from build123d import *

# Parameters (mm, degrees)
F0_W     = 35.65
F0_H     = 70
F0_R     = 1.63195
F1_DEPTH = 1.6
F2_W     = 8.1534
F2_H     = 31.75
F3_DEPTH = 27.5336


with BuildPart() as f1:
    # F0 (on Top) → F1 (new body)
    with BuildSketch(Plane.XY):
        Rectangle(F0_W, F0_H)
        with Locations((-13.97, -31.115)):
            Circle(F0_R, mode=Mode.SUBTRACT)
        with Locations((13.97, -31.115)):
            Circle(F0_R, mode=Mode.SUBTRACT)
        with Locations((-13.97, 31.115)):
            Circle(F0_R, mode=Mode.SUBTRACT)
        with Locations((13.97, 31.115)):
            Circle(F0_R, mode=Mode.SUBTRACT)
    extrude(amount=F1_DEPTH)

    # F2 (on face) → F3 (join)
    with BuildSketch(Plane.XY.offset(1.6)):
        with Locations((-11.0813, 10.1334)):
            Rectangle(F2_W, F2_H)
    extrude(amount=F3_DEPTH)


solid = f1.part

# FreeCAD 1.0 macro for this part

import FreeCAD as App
import Part
import Sketcher
from FreeCAD import Vector
Q = App.Units.Quantity


def add_polygon(sketch, points):
    """Adds a closed chain of lines whose ends are joined by coincident constraints."""
    first, n = sketch.GeometryCount, len(points)
    for a, b in zip(points, points[1:] + points[:1]):
        sketch.addGeometry(Part.LineSegment(App.Vector(*a, 0), App.Vector(*b, 0)), False)
    for i in range(n):
        sketch.addConstraint(Sketcher.Constraint("Coincident", first + i, 2, first + (i + 1) % n, 1))

doc = App.newDocument("Part")
body = doc.addObject("PartDesign::Body", "Body")

# Sketch on XY plane
sketch1 = body.newObject("Sketcher::SketchObject", "Sketch")
sketch1.AttachmentSupport = (doc.getObject("XY_Plane"), [""])
sketch1.MapMode = "FlatFace"
add_polygon(sketch1, [(-17.825, 35), (-17.825, -35), (17.825, -35), (17.825, 35)])  # lines 0-3
sketch1.addGeometry(Part.Circle(Vector(-13.97, -31.115, 0), Vector(0, 0, 1), 1.63195), False)  # 4
sketch1.addGeometry(Part.Circle(Vector(13.97, -31.115, 0), Vector(0, 0, 1), 1.63195), False)  # 5
sketch1.addGeometry(Part.Circle(Vector(-13.97, 31.115, 0), Vector(0, 0, 1), 1.63195), False)  # 6
sketch1.addGeometry(Part.Circle(Vector(13.97, 31.115, 0), Vector(0, 0, 1), 1.63195), False)  # 7
sketch1.addConstraint(Sketcher.Constraint("Vertical", 0))
sketch1.addConstraint(Sketcher.Constraint("Horizontal", 1))
sketch1.addConstraint(Sketcher.Constraint("Vertical", 2))
sketch1.addConstraint(Sketcher.Constraint("Horizontal", 3))
sketch1.addConstraint(Sketcher.Constraint("Equal", 4, 5))
sketch1.addConstraint(Sketcher.Constraint("Equal", 5, 6))
sketch1.addConstraint(Sketcher.Constraint("Equal", 6, 7))
sketch1.addConstraint(Sketcher.Constraint("Symmetric", 5, 3, 6, 3, -1, 1))
sketch1.addConstraint(Sketcher.Constraint("Symmetric", 4, 3, 7, 3, -1, 1))
sketch1.addConstraint(Sketcher.Constraint("Symmetric", 0, 2, 2, 2, -1, 1))
sketch1.addConstraint(Sketcher.Constraint("Symmetric", 4, 3, 5, 3, -2))
sketch1.addConstraint(Sketcher.Constraint("Diameter", 4, Q("0.1285 in")))
sketch1.addConstraint(Sketcher.Constraint("DistanceX", 4, 3, 5, 3, Q("1.1 in")))
sketch1.addConstraint(Sketcher.Constraint("DistanceY", 4, 3, 6, 3, Q("2.45 in")))
sketch1.addConstraint(Sketcher.Constraint("DistanceX", 1, 1, 1, 2, Q("35.65 mm")))
sketch1.addConstraint(Sketcher.Constraint("DistanceY", 0, 2, 0, 1, Q("70 mm")))
pad1 = body.newObject("PartDesign::Pad", "Pad")
pad1.Profile = sketch1
pad1.Length = 1.6

# Sketch on XY plane
sketch2 = body.newObject("Sketcher::SketchObject", "Sketch001")
sketch2.AttachmentSupport = (doc.getObject("XY_Plane"), [""])
sketch2.MapMode = "FlatFace"
sketch2.AttachmentOffset = App.Placement(Vector(0, 0, 1.6), App.Rotation())
add_polygon(sketch2, [(-15.158, 26.0084), (-15.158, -5.7416), (-7.0046, -5.7416), (-7.0046, 26.0084)])  # lines 0-3
sketch2.addConstraint(Sketcher.Constraint("Vertical", 0))
sketch2.addConstraint(Sketcher.Constraint("Horizontal", 1))
sketch2.addConstraint(Sketcher.Constraint("Vertical", 2))
sketch2.addConstraint(Sketcher.Constraint("Horizontal", 3))
sketch2.addConstraint(Sketcher.Constraint("DistanceY", 0, 2, 0, 1, Q("1.25 in")))
sketch2.addConstraint(Sketcher.Constraint("DistanceX", 1, 1, 1, 2, Q("0.321 in")))
sketch2.addConstraint(Sketcher.Constraint("DistanceX", 0, 2, -1, 1, Q("15.158 mm")))
sketch2.addConstraint(Sketcher.Constraint("DistanceY", 0, 2, -1, 1, Q("5.7416 mm")))
pad2 = body.newObject("PartDesign::Pad", "Pad001")
pad2.Profile = sketch2
pad2.Length = Q("1.084 in")

doc.recompute()
